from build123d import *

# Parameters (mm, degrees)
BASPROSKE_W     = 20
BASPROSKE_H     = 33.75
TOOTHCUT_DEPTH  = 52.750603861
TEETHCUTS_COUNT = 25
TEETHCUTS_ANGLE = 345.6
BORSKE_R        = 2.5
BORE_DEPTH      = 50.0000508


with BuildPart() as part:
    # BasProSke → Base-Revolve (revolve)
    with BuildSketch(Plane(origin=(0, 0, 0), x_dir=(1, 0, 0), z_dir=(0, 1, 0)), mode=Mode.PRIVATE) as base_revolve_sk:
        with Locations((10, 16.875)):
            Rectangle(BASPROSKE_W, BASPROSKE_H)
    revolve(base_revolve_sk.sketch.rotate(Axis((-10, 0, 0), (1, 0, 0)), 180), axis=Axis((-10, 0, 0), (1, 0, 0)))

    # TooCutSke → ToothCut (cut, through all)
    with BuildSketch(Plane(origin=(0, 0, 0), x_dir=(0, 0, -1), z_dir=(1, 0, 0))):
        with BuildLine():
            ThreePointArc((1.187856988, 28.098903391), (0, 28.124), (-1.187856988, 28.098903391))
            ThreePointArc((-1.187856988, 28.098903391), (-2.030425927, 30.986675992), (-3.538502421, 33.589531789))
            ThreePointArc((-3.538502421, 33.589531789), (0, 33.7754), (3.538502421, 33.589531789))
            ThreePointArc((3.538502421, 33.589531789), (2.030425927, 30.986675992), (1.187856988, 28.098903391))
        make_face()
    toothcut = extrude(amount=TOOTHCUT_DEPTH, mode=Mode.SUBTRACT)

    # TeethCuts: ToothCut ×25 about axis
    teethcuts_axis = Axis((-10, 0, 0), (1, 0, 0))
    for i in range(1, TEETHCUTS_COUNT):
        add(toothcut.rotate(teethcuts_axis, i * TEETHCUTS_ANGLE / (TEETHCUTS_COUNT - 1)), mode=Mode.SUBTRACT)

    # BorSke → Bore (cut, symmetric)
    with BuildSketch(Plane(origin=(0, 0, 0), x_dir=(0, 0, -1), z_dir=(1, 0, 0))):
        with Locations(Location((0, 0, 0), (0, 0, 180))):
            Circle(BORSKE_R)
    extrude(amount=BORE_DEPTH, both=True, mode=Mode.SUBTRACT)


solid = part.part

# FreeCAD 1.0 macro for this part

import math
import FreeCAD as App
import Part
import Sketcher


def add_polygon(sketch, points):
    """Adds a closed chain of lines whose ends are joined by coincident constraints."""
    first, n = sketch.GeometryCount, len(points)
    for a, b in zip(points, points[1:] + points[:1]):
        sketch.addGeometry(Part.LineSegment(App.Vector(*a, 0), App.Vector(*b, 0)), False)
    for i in range(n):
        sketch.addConstraint(Sketcher.Constraint("Coincident", first + i, 2, first + (i + 1) % n, 1))

doc = App.newDocument("Part")
body = doc.addObject("PartDesign::Body", "Body")

# Sketch on XZ plane
sketch1 = body.newObject("Sketcher::SketchObject", "Sketch")
sketch1.AttachmentSupport = (doc.getObject("XZ_Plane"), [""])
sketch1.MapMode = "FlatFace"
add_polygon(sketch1, [(0, -33.75), (0, 0), (20, 0), (20, -33.75)])  # lines 0-3
sketch1.addConstraint(Sketcher.Constraint("Vertical", 0))
sketch1.addConstraint(Sketcher.Constraint("Horizontal", 1))
sketch1.addConstraint(Sketcher.Constraint("Vertical", 2))
sketch1.addConstraint(Sketcher.Constraint("Horizontal", 3))
sketch1.addConstraint(Sketcher.Constraint("Coincident", 0, 2, -1, 1))
sketch1.addConstraint(Sketcher.Constraint("DistanceX", 1, 1, 1, 2, 20.0))
sketch1.addConstraint(Sketcher.Constraint("DistanceY", 0, 1, 0, 2, 33.75))
revolution = body.newObject("PartDesign::Revolution", "Revolution")
revolution.Profile = sketch1
revolution.ReferenceAxis = (sketch1, ["H_Axis"])
revolution.Angle = 360

# Sketch on YZ plane
sketch2 = body.newObject("Sketcher::SketchObject", "Sketch001")
sketch2.AttachmentSupport = (doc.getObject("YZ_Plane"), [""])
sketch2.MapMode = "FlatFace"
sketch2.addGeometry(Part.ArcOfCircle(Part.Circle(App.Vector(0, 0, 0), App.Vector(0, 0, 1), 28.124), math.radians(-2.420689), math.radians(2.420689)), False)
sketch2.addGeometry(Part.ArcOfCircle(Part.Circle(App.Vector(26.067072, -13.521618, 0), App.Vector(0, 0, 1), 12.5), math.radians(53.001308), math.radians(80.645263)), False)
sketch2.addGeometry(Part.ArcOfCircle(Part.Circle(App.Vector(0, 0, 0), App.Vector(0, 0, 1), 33.7754), math.radians(-6.013666), math.radians(6.013666)), False)
sketch2.addGeometry(Part.ArcOfCircle(Part.Circle(App.Vector(26.067072, 13.521618, 0), App.Vector(0, 0, 1), 12.5), math.radians(-80.645263), math.radians(-53.001308)), False)
sketch2.addConstraint(Sketcher.Constraint("Coincident", 0, 1, 1, 2))
sketch2.addConstraint(Sketcher.Constraint("Coincident", 1, 1, 2, 1))
sketch2.addConstraint(Sketcher.Constraint("Coincident", 2, 2, 3, 2))
sketch2.addConstraint(Sketcher.Constraint("Coincident", 3, 1, 0, 2))
sketch2.addConstraint(Sketcher.Constraint("Coincident", 0, 3, -1, 1))
sketch2.addConstraint(Sketcher.Constraint("Coincident", 2, 3, -1, 1))
sketch2.addConstraint(Sketcher.Constraint("Equal", 1, 3))
sketch2.addConstraint(Sketcher.Constraint("Symmetric", 1, 3, 3, 3, -1))
sketch2.addConstraint(Sketcher.Constraint("Radius", 1, 12.5))
sketch2.addConstraint(Sketcher.Constraint("Radius", 0, 28.124))
sketch2.addConstraint(Sketcher.Constraint("Radius", 2, 33.7754))
sketch2.addConstraint(Sketcher.Constraint("DistanceX", -1, 1, 1, 3, 26.067072))
sketch2.addConstraint(Sketcher.Constraint("DistanceX", -1, 1, 1, 1, 33.589532))
pocket1 = body.newObject("PartDesign::Pocket", "Pocket")
pocket1.Profile = sketch2
pocket1.Type = "ThroughAll"
pocket1.Reversed = True
doc.recompute()

polarpattern = body.newObject("PartDesign::PolarPattern", "PolarPattern")
polarpattern.Originals = [pocket1]
polarpattern.Axis = (doc.getObject("X_Axis"), [""])
polarpattern.Angle = 360
polarpattern.Occurrences = 25
body.Tip = polarpattern

# Sketch on YZ plane
sketch3 = body.newObject("Sketcher::SketchObject", "Sketch002")
sketch3.AttachmentSupport = (doc.getObject("YZ_Plane"), [""])
sketch3.MapMode = "FlatFace"
sketch3.addGeometry(Part.Circle(App.Vector(0, 0, 0), App.Vector(0, 0, 1), 2.5), False)
sketch3.addConstraint(Sketcher.Constraint("Coincident", 0, 3, -1, 1))
sketch3.addConstraint(Sketcher.Constraint("Diameter", 0, 5.0))
pocket2 = body.newObject("PartDesign::Pocket", "Pocket001")
pocket2.Profile = sketch3
pocket2.Length = 100.000102
pocket2.Midplane = True

doc.recompute()
